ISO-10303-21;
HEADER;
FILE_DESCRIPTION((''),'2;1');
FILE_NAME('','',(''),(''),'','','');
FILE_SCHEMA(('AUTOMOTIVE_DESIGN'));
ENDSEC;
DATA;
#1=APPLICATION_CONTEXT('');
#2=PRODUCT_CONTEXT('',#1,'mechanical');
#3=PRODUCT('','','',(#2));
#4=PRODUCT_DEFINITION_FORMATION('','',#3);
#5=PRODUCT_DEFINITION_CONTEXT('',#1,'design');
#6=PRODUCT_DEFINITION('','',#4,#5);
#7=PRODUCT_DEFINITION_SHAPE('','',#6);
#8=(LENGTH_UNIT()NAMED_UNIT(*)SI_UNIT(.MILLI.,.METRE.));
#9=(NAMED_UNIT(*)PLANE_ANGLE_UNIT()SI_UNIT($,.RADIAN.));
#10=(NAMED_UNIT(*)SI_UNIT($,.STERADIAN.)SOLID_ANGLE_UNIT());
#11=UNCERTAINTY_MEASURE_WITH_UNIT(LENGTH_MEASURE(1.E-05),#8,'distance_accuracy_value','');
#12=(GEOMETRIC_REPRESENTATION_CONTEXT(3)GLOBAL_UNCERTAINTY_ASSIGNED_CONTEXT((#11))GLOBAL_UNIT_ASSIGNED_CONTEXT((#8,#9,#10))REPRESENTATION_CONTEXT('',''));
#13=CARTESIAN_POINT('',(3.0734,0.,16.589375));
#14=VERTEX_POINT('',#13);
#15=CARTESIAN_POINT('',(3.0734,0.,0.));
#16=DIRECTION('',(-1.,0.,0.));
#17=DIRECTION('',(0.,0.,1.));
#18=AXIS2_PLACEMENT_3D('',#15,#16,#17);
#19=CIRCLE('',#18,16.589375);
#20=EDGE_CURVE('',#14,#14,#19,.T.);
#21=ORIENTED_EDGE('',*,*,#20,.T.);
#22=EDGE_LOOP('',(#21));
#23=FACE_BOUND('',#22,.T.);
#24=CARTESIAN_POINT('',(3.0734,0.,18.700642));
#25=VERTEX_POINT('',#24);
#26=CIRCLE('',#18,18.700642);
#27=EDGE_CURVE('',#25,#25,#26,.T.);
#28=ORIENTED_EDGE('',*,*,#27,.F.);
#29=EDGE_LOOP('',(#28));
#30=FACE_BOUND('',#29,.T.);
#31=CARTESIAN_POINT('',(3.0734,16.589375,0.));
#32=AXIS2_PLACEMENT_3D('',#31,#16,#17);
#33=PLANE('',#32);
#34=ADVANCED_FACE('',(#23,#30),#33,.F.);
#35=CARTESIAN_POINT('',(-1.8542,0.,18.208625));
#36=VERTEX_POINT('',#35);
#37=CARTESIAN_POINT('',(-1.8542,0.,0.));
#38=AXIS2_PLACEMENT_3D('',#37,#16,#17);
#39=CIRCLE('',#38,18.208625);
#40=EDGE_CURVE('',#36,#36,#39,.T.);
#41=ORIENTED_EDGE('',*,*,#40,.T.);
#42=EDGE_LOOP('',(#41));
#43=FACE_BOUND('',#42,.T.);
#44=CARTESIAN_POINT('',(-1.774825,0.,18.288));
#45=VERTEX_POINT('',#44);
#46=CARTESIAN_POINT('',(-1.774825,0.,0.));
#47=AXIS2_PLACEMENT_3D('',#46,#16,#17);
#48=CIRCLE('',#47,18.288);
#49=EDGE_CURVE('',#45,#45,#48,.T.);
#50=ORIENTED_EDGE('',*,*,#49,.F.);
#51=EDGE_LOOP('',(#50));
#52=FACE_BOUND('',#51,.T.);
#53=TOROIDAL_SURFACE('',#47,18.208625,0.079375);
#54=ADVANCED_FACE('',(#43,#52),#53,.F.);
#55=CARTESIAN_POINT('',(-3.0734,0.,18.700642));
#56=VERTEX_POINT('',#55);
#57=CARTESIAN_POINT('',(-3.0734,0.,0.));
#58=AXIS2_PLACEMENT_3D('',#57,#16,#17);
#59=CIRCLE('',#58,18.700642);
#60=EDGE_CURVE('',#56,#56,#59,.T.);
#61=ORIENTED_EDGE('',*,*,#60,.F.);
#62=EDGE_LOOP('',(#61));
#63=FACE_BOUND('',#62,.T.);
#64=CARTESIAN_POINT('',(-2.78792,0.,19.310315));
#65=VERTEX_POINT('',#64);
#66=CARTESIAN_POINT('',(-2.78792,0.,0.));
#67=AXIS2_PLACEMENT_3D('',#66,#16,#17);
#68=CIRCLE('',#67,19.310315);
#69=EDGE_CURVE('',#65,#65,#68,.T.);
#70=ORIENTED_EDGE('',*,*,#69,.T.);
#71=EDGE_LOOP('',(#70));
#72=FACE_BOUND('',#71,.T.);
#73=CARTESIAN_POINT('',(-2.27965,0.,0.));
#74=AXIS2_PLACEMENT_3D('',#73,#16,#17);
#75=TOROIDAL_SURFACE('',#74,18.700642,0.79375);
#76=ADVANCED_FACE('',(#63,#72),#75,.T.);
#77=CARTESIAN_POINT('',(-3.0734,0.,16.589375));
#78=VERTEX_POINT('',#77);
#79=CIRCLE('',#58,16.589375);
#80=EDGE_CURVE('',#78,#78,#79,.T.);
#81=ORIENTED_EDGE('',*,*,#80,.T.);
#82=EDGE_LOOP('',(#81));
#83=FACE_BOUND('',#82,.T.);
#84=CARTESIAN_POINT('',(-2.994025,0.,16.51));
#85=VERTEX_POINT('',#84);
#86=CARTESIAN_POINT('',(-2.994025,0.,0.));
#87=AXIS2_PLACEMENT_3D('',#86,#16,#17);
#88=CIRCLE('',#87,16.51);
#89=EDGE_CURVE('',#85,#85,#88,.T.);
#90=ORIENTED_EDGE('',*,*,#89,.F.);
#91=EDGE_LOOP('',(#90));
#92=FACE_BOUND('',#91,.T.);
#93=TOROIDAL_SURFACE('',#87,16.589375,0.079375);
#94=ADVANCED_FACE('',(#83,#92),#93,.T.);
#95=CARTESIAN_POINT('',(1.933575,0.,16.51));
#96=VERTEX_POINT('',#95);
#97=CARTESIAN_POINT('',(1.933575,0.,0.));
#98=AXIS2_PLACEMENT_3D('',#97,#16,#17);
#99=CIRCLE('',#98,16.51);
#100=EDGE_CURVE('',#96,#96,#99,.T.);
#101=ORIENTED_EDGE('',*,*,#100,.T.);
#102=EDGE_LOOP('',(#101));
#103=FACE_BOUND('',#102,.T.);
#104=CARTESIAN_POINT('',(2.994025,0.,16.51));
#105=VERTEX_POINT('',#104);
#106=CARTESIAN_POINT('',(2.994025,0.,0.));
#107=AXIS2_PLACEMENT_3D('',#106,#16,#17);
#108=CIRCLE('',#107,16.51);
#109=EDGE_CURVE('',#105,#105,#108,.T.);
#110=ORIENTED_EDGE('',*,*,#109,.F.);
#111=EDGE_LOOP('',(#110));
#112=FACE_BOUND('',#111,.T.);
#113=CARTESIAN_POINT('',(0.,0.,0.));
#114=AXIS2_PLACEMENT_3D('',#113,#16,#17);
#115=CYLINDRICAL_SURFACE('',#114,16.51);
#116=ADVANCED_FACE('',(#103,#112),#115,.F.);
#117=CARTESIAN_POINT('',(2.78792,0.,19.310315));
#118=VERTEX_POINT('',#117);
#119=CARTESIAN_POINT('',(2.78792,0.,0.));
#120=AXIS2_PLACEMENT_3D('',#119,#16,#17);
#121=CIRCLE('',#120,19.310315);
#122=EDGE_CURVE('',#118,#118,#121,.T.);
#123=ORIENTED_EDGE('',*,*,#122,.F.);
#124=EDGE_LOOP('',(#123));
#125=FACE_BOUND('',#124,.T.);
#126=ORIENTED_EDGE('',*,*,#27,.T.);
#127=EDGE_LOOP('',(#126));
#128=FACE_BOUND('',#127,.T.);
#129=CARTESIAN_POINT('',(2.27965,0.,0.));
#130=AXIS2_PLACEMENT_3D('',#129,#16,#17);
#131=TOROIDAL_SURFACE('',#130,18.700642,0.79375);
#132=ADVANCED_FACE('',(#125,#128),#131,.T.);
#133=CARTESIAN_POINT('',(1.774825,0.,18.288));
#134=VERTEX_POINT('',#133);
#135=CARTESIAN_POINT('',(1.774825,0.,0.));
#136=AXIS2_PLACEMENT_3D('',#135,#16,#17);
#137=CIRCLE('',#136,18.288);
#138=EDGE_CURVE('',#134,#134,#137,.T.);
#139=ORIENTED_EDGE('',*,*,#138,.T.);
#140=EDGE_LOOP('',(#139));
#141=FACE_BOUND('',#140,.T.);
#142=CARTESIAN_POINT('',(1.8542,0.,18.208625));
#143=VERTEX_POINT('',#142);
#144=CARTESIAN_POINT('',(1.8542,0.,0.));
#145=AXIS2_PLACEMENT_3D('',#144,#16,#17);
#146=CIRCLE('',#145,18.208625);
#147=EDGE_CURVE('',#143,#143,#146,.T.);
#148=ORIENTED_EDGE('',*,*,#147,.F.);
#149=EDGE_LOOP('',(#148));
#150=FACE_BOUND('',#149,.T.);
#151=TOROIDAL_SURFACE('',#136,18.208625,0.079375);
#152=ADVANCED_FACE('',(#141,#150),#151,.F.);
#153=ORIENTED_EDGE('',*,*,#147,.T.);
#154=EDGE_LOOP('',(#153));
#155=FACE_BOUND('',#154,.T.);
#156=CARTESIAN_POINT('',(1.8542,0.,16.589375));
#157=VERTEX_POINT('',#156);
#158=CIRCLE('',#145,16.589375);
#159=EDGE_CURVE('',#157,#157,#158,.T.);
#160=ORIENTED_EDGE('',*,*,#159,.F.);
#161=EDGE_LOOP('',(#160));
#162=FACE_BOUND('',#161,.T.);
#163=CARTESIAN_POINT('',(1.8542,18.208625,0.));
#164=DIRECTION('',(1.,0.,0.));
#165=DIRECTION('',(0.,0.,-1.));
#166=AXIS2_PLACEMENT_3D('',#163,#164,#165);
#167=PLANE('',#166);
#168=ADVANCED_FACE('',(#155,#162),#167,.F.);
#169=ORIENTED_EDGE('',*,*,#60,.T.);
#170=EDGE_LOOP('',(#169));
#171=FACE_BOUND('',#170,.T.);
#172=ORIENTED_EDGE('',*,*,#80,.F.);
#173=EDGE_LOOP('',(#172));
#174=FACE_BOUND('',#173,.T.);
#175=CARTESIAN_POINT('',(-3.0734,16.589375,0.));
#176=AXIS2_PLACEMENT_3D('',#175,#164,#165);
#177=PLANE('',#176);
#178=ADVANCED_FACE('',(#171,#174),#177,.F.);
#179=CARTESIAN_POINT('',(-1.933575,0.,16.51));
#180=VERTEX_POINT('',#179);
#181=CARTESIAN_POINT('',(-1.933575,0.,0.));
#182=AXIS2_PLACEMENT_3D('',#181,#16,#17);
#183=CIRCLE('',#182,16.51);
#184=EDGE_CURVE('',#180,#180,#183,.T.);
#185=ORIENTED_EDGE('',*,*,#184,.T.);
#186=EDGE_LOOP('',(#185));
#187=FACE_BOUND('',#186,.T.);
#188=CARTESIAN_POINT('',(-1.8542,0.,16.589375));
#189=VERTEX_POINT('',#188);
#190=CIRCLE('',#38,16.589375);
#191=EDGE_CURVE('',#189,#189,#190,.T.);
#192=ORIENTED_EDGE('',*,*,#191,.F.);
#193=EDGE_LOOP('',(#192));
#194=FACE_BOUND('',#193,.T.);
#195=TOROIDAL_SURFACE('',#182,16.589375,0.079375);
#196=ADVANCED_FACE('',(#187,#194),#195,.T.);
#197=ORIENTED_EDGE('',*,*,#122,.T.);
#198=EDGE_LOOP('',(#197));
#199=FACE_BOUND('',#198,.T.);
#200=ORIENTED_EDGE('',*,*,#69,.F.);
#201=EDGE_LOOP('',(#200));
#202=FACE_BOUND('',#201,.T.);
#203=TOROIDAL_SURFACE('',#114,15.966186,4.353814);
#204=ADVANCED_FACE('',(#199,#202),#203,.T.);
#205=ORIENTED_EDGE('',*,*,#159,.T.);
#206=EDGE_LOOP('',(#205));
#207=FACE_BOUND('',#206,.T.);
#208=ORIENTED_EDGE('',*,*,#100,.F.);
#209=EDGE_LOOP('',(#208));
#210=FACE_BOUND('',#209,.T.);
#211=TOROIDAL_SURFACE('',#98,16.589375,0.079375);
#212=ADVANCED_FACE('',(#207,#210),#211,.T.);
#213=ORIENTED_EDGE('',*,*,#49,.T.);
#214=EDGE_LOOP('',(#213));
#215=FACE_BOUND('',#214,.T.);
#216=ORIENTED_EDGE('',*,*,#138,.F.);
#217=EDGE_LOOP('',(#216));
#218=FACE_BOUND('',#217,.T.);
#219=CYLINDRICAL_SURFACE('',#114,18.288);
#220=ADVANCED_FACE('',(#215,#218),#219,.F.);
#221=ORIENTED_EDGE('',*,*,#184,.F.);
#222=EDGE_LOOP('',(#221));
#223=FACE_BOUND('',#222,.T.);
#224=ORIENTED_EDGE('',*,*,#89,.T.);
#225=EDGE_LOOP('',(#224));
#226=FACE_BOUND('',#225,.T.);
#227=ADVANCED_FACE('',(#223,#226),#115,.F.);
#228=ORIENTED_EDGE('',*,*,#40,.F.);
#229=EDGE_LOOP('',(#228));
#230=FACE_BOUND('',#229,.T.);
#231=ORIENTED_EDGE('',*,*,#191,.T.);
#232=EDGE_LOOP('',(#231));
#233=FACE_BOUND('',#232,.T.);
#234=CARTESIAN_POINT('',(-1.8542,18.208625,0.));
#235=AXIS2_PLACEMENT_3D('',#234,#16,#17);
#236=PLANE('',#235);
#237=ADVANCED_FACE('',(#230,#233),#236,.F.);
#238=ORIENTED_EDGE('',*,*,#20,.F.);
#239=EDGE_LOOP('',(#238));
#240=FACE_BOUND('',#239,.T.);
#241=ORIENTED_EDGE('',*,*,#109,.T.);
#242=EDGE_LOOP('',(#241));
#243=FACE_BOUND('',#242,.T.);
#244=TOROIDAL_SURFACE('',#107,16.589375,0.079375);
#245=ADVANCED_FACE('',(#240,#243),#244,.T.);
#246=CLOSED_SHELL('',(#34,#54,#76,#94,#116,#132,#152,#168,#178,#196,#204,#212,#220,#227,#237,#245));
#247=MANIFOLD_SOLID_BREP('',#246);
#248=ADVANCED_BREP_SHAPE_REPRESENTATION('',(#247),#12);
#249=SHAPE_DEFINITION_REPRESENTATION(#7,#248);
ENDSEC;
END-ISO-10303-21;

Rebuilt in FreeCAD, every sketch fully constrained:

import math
import FreeCAD as App
import Part
import Sketcher
Q = App.Units.Quantity

doc = App.newDocument("Part")
body = doc.addObject("PartDesign::Body", "Body")

sketch1 = doc.addObject("Sketcher::SketchObject", "Sketch")
body.addObject(sketch1)
sketch1.AttachmentSupport = (doc.XY_Plane, [""])
sketch1.MapMode = "FlatFace"
sketch1.addGeometry(Part.LineSegment(App.Vector(-1.774825, 18.288, 0), App.Vector(1.774825, 18.288, 0)), False)
sketch1.addGeometry(Part.ArcOfCircle(Part.Circle(App.Vector(1.774825, 18.208625, 0), App.Vector(0, 0, 1), 0.079375), math.radians(-0.000001), math.radians(90.000001)), False)
sketch1.addGeometry(Part.LineSegment(App.Vector(1.8542, 18.208625, 0), App.Vector(1.8542, 16.589375, 0)), False)
sketch1.addGeometry(Part.ArcOfCircle(Part.Circle(App.Vector(1.933575, 16.589375, 0), App.Vector(0, 0, 1), 0.079375), math.radians(179.999999), math.radians(270.000001)), False)
sketch1.addGeometry(Part.LineSegment(App.Vector(1.933575, 16.51, 0), App.Vector(2.994025, 16.51, 0)), False)
sketch1.addGeometry(Part.ArcOfCircle(Part.Circle(App.Vector(2.994025, 16.589375, 0), App.Vector(0, 0, 1), 0.079375), math.radians(-90.000001), math.radians(0.000001)), False)
sketch1.addGeometry(Part.LineSegment(App.Vector(3.0734, 16.589375, 0), App.Vector(3.0734, 18.700642, 0)), False)
sketch1.addGeometry(Part.ArcOfCircle(Part.Circle(App.Vector(2.27965, 18.700642, 0), App.Vector(0, 0, 1), 0.79375), math.radians(0), math.radians(50.182852)), False)
sketch1.addGeometry(Part.ArcOfCircle(Part.Circle(App.Vector(0, 15.966186, 0), App.Vector(0, 0, 1), 4.353814), math.radians(50.182852), math.radians(129.817148)), False)
sketch1.addGeometry(Part.ArcOfCircle(Part.Circle(App.Vector(-2.27965, 18.700642, 0), App.Vector(0, 0, 1), 0.79375), math.radians(129.817148), math.radians(180)), False)
sketch1.addGeometry(Part.LineSegment(App.Vector(-3.0734, 18.700642, 0), App.Vector(-3.0734, 16.589375, 0)), False)
sketch1.addGeometry(Part.ArcOfCircle(Part.Circle(App.Vector(-2.994025, 16.589375, 0), App.Vector(0, 0, 1), 0.079375), math.radians(179.999999), math.radians(270.000001)), False)
sketch1.addGeometry(Part.LineSegment(App.Vector(-2.994025, 16.51, 0), App.Vector(-1.933575, 16.51, 0)), False)
sketch1.addGeometry(Part.ArcOfCircle(Part.Circle(App.Vector(-1.933575, 16.589375, 0), App.Vector(0, 0, 1), 0.079375), math.radians(-90.000001), math.radians(0.000001)), False)
sketch1.addGeometry(Part.LineSegment(App.Vector(-1.8542, 16.589375, 0), App.Vector(-1.8542, 18.208625, 0)), False)
sketch1.addGeometry(Part.ArcOfCircle(Part.Circle(App.Vector(-1.774825, 18.208625, 0), App.Vector(0, 0, 1), 0.079375), math.radians(89.999999), math.radians(180.000001)), False)
sketch1.addConstraint(Sketcher.Constraint("Tangent", 0, 2, 1, 2))
sketch1.addConstraint(Sketcher.Constraint("Tangent", 1, 1, 2, 1))
sketch1.addConstraint(Sketcher.Constraint("Tangent", 2, 2, 3, 1))
sketch1.addConstraint(Sketcher.Constraint("Tangent", 3, 2, 4, 1))
sketch1.addConstraint(Sketcher.Constraint("Tangent", 4, 2, 5, 1))
sketch1.addConstraint(Sketcher.Constraint("Tangent", 5, 2, 6, 1))
sketch1.addConstraint(Sketcher.Constraint("Tangent", 6, 2, 7, 1))
sketch1.addConstraint(Sketcher.Constraint("Tangent", 7, 2, 8, 1))
sketch1.addConstraint(Sketcher.Constraint("Tangent", 8, 2, 9, 1))
sketch1.addConstraint(Sketcher.Constraint("Tangent", 9, 2, 10, 1))
sketch1.addConstraint(Sketcher.Constraint("Tangent", 10, 2, 11, 1))
sketch1.addConstraint(Sketcher.Constraint("Tangent", 11, 2, 12, 1))
sketch1.addConstraint(Sketcher.Constraint("Tangent", 12, 2, 13, 1))
sketch1.addConstraint(Sketcher.Constraint("Tangent", 13, 2, 14, 1))
sketch1.addConstraint(Sketcher.Constraint("Tangent", 14, 2, 15, 2))
sketch1.addConstraint(Sketcher.Constraint("Tangent", 15, 1, 0, 1))
sketch1.addConstraint(Sketcher.Constraint("Horizontal", 0))
sketch1.addConstraint(Sketcher.Constraint("Vertical", 2))
sketch1.addConstraint(Sketcher.Constraint("Horizontal", 4))
sketch1.addConstraint(Sketcher.Constraint("Vertical", 6))
sketch1.addConstraint(Sketcher.Constraint("Vertical", 10))
sketch1.addConstraint(Sketcher.Constraint("Horizontal", 12))
sketch1.addConstraint(Sketcher.Constraint("Vertical", 14))
sketch1.addConstraint(Sketcher.Constraint("Equal", 1, 3))
sketch1.addConstraint(Sketcher.Constraint("Equal", 3, 5))
sketch1.addConstraint(Sketcher.Constraint("Equal", 7, 9))
sketch1.addConstraint(Sketcher.Constraint("Equal", 5, 11))
sketch1.addConstraint(Sketcher.Constraint("Equal", 11, 13))
sketch1.addConstraint(Sketcher.Constraint("Equal", 13, 15))
sketch1.addConstraint(Sketcher.Constraint("Symmetric", 7, 3, 9, 3, -2))
sketch1.addConstraint(Sketcher.Constraint("Symmetric", 3, 3, 13, 3, -2))
sketch1.addConstraint(Sketcher.Constraint("Radius", 7, Q("0.03125 in")))
sketch1.addConstraint(Sketcher.Constraint("DistanceY", -1, 1, 0, 2, Q("0.72 in")))
sketch1.addConstraint(Sketcher.Constraint("DistanceY", -1, 1, 3, 2, Q("0.65 in")))
sketch1.addConstraint(Sketcher.Constraint("DistanceX", -1, 1, 1, 1, Q("0.073 in")))
sketch1.addConstraint(Sketcher.Constraint("DistanceX", -1, 1, 5, 2, Q("0.121 in")))
sketch1.addConstraint(Sketcher.Constraint("Radius", 1, 0.079375))
sketch1.addConstraint(Sketcher.Constraint("Radius", 8, 4.353814))
sketch1.addConstraint(Sketcher.Constraint("DistanceY", 6, 1, 6, 2, 2.111267))
revolution = doc.addObject("PartDesign::Revolution", "Revolution")
body.addObject(revolution)
revolution.Profile = sketch1
revolution.ReferenceAxis = (sketch1, ["H_Axis"])
revolution.Angle = 360

doc.recompute()
